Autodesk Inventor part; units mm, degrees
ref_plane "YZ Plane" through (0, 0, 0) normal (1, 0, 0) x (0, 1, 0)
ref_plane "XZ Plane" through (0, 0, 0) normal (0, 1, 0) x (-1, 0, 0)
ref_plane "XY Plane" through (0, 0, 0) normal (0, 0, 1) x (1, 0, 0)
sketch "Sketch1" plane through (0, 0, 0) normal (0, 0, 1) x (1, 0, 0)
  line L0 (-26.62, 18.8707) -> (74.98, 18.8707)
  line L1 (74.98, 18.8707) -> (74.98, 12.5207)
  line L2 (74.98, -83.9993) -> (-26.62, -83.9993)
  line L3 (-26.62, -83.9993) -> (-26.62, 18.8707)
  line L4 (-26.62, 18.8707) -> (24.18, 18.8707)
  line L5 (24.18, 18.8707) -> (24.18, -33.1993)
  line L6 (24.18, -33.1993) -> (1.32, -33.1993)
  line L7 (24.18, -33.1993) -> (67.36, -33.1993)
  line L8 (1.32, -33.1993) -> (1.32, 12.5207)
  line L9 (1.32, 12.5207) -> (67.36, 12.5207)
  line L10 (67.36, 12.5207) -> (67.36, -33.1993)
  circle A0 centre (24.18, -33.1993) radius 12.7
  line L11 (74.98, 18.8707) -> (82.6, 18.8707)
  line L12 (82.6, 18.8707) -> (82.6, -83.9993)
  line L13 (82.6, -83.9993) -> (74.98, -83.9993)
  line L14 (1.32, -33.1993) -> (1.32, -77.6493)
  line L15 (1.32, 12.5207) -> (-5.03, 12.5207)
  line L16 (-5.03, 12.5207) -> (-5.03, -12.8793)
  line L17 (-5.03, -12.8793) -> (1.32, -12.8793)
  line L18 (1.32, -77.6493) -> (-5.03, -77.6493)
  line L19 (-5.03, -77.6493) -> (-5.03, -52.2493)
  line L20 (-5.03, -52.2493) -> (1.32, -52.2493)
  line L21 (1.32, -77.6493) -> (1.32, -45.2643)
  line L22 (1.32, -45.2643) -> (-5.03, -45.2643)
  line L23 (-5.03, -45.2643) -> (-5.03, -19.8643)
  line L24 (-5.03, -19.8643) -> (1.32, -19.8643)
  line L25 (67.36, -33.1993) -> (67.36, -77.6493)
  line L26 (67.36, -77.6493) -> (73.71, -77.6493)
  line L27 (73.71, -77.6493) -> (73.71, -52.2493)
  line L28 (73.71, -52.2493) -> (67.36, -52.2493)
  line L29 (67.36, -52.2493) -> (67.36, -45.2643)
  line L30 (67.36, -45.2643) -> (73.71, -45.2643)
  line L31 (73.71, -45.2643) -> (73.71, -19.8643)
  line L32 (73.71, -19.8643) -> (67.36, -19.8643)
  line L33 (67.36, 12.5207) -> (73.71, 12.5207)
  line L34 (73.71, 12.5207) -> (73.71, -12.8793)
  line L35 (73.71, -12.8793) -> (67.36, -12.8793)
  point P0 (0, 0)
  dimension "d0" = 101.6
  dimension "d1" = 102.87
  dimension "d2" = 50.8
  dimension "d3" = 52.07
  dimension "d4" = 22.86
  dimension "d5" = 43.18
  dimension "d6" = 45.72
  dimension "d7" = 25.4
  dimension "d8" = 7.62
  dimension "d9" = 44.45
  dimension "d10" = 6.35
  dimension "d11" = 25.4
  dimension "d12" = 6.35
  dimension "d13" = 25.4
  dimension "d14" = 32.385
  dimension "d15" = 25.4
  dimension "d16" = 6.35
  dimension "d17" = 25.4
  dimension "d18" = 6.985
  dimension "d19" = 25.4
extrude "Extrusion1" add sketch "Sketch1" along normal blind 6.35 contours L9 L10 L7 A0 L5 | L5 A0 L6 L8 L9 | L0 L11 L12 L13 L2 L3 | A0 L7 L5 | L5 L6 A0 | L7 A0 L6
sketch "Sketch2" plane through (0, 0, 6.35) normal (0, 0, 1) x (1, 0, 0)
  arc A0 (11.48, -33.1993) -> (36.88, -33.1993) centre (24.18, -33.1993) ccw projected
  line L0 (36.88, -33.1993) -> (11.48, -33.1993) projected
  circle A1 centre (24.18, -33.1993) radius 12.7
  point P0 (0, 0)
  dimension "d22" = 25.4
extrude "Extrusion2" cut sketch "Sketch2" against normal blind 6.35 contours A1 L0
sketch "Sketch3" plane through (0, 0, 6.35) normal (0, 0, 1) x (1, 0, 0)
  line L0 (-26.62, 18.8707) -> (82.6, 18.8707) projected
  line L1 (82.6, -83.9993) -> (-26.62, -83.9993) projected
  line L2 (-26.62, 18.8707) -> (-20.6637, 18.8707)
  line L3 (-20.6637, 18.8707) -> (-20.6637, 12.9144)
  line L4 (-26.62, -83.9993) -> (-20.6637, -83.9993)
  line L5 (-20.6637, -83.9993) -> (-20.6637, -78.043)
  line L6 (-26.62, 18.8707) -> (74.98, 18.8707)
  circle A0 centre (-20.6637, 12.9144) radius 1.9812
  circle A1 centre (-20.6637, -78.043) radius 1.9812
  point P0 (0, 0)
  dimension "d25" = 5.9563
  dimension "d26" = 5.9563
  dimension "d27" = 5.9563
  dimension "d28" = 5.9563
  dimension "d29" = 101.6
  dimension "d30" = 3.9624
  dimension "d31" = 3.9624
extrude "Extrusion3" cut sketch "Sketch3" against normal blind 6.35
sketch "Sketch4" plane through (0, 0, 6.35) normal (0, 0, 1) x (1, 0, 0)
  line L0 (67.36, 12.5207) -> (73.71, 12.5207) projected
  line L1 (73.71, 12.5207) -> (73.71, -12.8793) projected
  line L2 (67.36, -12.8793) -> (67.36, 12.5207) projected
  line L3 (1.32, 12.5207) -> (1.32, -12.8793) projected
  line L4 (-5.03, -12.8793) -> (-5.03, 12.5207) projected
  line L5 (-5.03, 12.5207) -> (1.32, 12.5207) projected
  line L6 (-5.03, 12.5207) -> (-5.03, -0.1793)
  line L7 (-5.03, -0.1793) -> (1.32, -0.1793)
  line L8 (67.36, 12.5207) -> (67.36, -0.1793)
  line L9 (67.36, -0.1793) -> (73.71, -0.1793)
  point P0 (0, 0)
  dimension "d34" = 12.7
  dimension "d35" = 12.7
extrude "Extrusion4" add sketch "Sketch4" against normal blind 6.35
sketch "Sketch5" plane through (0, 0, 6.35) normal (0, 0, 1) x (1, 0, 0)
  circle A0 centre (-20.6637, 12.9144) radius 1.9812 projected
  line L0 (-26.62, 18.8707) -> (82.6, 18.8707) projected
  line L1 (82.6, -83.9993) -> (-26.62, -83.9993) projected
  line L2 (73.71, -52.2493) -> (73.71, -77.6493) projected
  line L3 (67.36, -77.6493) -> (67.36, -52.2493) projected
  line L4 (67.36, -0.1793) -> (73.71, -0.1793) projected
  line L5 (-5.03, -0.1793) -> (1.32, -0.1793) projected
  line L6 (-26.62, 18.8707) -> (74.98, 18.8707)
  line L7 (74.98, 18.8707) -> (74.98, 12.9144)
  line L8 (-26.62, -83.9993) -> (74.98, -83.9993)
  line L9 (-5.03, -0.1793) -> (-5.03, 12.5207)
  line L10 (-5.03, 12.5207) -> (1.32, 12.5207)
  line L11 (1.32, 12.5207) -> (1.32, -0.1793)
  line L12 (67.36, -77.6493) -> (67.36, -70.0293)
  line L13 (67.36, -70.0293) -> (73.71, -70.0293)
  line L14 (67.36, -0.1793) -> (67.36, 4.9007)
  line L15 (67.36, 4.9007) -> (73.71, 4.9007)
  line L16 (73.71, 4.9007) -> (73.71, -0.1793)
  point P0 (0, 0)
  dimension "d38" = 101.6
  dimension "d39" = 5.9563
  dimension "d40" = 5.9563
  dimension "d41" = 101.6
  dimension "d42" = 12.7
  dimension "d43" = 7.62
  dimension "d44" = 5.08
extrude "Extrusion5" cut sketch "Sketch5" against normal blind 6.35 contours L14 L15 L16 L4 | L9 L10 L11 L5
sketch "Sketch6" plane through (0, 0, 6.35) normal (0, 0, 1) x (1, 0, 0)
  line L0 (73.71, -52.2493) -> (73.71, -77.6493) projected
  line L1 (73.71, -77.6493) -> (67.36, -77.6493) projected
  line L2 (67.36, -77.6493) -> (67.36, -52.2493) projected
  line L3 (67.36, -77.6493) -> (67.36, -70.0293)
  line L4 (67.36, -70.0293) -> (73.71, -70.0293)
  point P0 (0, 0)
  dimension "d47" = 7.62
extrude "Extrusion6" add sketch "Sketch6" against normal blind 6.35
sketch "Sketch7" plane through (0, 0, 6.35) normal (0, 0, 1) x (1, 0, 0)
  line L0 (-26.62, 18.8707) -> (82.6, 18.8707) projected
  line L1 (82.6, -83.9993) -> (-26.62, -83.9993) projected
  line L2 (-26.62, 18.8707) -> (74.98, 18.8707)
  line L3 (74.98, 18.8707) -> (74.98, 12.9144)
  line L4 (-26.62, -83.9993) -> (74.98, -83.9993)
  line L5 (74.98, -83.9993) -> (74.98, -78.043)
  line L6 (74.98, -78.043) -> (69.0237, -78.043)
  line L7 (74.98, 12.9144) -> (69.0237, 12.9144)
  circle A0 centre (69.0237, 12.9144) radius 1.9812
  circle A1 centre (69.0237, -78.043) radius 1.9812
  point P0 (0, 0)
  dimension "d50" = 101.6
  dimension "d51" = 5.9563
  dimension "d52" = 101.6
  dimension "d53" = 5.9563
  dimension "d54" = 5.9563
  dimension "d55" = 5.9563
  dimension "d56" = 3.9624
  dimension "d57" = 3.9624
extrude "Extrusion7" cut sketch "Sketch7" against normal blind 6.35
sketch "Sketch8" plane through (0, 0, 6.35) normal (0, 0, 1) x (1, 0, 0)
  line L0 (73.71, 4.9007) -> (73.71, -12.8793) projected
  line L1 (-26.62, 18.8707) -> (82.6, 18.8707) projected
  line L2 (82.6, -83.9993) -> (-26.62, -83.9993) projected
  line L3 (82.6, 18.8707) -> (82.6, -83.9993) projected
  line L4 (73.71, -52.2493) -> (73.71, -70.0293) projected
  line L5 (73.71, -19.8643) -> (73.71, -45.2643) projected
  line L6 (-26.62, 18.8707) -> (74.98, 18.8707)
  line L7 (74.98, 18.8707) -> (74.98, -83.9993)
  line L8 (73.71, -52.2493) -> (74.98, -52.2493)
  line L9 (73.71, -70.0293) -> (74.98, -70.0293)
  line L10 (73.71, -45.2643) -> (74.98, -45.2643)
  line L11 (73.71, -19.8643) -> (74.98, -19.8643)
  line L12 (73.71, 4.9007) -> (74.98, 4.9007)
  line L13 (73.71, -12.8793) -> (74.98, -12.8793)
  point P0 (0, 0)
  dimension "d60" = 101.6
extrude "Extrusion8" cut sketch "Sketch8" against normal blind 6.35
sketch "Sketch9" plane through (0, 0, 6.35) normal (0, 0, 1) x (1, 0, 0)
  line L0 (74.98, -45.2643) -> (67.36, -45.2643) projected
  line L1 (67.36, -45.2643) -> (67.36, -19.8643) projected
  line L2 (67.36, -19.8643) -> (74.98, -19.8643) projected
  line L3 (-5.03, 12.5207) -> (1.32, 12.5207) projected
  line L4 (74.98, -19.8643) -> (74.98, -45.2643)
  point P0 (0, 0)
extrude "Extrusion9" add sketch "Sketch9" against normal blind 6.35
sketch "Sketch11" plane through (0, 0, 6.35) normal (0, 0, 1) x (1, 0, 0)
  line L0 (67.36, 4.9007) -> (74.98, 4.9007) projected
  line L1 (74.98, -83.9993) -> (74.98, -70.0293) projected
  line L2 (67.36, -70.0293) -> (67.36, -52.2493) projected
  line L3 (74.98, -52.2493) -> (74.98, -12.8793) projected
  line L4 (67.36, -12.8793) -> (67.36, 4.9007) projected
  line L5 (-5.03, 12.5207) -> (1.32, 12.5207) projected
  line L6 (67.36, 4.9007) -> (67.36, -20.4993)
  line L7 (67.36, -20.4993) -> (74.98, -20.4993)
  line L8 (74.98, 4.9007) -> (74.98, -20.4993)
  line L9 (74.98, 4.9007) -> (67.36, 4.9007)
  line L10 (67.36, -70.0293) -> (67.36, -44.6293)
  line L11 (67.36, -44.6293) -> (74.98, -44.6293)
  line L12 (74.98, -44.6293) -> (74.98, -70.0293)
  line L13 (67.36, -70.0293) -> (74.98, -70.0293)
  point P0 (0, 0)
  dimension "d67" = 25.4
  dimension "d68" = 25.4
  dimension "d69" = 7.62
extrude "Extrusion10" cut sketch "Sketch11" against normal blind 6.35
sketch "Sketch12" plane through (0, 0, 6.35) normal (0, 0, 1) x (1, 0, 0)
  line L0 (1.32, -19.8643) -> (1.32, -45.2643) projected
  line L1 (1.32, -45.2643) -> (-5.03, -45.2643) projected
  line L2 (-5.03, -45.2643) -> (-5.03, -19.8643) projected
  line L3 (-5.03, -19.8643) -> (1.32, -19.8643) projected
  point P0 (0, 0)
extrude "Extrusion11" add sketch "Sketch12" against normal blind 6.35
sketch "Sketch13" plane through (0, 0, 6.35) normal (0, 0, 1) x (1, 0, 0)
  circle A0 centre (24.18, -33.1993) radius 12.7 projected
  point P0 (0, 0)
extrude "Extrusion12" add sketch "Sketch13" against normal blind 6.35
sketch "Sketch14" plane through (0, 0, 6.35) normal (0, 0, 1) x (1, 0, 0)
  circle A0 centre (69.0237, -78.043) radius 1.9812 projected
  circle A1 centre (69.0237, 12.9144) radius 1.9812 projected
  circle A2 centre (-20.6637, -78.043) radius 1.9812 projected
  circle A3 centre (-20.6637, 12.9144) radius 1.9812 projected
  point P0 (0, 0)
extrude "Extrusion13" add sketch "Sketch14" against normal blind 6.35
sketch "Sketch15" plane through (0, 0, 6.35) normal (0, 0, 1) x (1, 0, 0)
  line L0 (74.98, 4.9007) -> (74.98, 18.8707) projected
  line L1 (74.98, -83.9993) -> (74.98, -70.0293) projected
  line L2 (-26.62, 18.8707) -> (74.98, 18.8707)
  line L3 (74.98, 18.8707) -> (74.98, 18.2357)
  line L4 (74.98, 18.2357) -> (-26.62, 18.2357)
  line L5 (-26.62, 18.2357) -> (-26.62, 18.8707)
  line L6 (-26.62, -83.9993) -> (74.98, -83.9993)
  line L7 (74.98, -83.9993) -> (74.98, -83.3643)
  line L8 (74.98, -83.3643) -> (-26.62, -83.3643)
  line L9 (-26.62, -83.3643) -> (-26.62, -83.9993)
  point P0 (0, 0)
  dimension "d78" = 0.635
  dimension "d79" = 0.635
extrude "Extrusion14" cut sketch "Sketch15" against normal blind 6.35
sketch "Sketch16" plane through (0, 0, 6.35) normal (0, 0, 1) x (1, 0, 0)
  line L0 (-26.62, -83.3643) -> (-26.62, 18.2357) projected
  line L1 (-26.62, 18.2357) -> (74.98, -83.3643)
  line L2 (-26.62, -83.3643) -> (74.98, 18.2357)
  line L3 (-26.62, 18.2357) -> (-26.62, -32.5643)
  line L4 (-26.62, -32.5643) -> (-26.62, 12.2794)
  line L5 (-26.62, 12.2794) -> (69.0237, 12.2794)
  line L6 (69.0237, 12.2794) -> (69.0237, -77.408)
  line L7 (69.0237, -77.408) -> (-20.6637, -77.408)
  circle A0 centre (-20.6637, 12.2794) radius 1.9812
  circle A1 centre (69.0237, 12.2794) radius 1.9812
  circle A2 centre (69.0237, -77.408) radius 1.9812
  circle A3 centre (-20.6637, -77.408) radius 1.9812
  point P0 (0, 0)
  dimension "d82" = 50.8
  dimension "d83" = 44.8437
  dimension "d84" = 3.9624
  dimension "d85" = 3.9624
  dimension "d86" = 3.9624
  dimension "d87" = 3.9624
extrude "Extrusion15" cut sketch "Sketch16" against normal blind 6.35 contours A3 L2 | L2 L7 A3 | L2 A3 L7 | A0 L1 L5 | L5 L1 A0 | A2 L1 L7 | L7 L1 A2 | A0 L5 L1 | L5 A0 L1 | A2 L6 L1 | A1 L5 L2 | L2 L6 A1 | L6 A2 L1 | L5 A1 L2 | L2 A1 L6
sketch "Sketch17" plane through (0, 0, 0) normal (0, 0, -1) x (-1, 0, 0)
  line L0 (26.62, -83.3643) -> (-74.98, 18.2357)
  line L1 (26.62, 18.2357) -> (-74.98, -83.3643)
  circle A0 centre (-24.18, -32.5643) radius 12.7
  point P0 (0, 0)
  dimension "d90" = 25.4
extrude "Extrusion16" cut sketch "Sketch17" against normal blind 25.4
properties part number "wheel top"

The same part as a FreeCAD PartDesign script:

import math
import FreeCAD as App
import Part
import Sketcher
Q = App.Units.Quantity


def add_polygon(sketch, points):
    """Adds a closed chain of lines whose ends are joined by coincident constraints."""
    first, n = sketch.GeometryCount, len(points)
    for a, b in zip(points, points[1:] + points[:1]):
        sketch.addGeometry(Part.LineSegment(App.Vector(*a, 0), App.Vector(*b, 0)), False)
    for i in range(n):
        sketch.addConstraint(Sketcher.Constraint("Coincident", first + i, 2, first + (i + 1) % n, 1))

doc = App.newDocument("Part")
params = doc.addObject("Spreadsheet::Sheet", "Params")
for row, (alias, value) in enumerate([
    ("sketch1_width", "2 in"),
    ("sketch1_height", "1 in"),
    ("sketch1_width2", "0.25 in"),
    ("sketch1_height2", "4.05 in"),
    ("sketch1_width3", "4.3 in"),
    ("pad1_length", "0.25 in"),
    ("sketch2_radius", "0.5 in"),
    ("pocket1_length", "0.25 in"),
    ("sketch3_diameter", "0.156 in"),
    ("pocket2_length", "0.25 in"),
    ("sketch4_height", "0.5 in"),
    ("sketch4_width", "0.25 in"),
    ("pad2_length", "0.25 in"),
    ("sketch5_height", "0.2 in"),
    ("sketch5_height2", "0.5 in"),
    ("sketch5_width", "0.25 in"),
    ("pocket3_length", "0.25 in"),
    ("sketch6_height", "0.3 in"),
    ("sketch6_width", "0.25 in"),
    ("pad3_length", "0.25 in"),
    ("sketch7_diameter", "0.156 in"),
    ("pocket4_length", "0.25 in"),
    ("sketch8_height", "1 in"),
    ("sketch8_width", "0.3 in"),
    ("sketch8_height2", "0.7 in"),
    ("sketch8_width2", "0.05 in"),
    ("sketch8_height3", "0.55 in"),
    ("pocket5_length", "0.25 in"),
    ("sketch9_height", "1 in"),
    ("sketch9_width", "0.3 in"),
    ("pad4_length", "0.25 in"),
    ("sketch10_height", "1 in"),
    ("sketch10_width", "0.3 in"),
    ("pocket6_length", "0.25 in"),
    ("sketch11_height", "1 in"),
    ("sketch11_width", "0.25 in"),
    ("pad5_length", "0.25 in"),
    ("sketch12_diameter", "1 in"),
    ("pad6_length", "0.25 in"),
    ("sketch13_diameter", "0.156 in"),
    ("pad7_length", "0.25 in"),
    ("sketch14_width", "4 in"),
    ("sketch14_height", "0.025 in"),
    ("pocket7_length", "0.25 in"),
    ("sketch15_diameter", "0.156 in"),
    ("pocket8_length", "0.25 in"),
    ("sketch16_diameter", "1 in"),
    ("pocket9_length", "1 in"),
], start=1):
    params.set(f"A{row}", alias)
    params.set(f"B{row}", "=" + value)
    params.setAlias(f"B{row}", alias)

body = doc.addObject("PartDesign::Body", "Body")

# Sketch on XY plane
sketch1 = body.newObject("Sketcher::SketchObject", "Sketch")
sketch1.AttachmentSupport = (doc.getObject("XY_Plane"), [""])
sketch1.MapMode = "FlatFace"
add_polygon(sketch1, [(24, 19), (-27, 19), (-27, -84), (83, -84), (83, 19)])  # lines 0-4
add_polygon(sketch1, [(67, -13), (67, 13), (74, 13), (74, -13)])  # lines 5-8
add_polygon(sketch1, [(67, -20), (74, -20), (74, -45), (67, -45)])  # lines 9-12
add_polygon(sketch1, [(-5, -52), (1, -52), (1, -78), (-5, -78)])  # lines 13-16
add_polygon(sketch1, [(67, -78), (67, -52), (74, -52), (74, -78)])  # lines 17-20
add_polygon(sketch1, [(-5, 13), (1, 13), (1, -13), (-5, -13)])  # lines 21-24
add_polygon(sketch1, [(-5, -20), (1, -20), (1, -45), (-5, -45)])  # lines 25-28
sketch1.addConstraint([
    Sketcher.Constraint("Horizontal", 0),
    Sketcher.Constraint("Vertical", 1),
    Sketcher.Constraint("Horizontal", 2),
    Sketcher.Constraint("Vertical", 3),
    Sketcher.Constraint("Horizontal", 4),
    Sketcher.Constraint("Vertical", 5),
    Sketcher.Constraint("Horizontal", 6),
    Sketcher.Constraint("Vertical", 7),
    Sketcher.Constraint("Horizontal", 8),
    Sketcher.Constraint("Horizontal", 9),
    Sketcher.Constraint("Vertical", 10),
    Sketcher.Constraint("Horizontal", 11),
    Sketcher.Constraint("Vertical", 12),
    Sketcher.Constraint("Horizontal", 13),
    Sketcher.Constraint("Vertical", 14),
    Sketcher.Constraint("Horizontal", 15),
    Sketcher.Constraint("Vertical", 16),
    Sketcher.Constraint("Vertical", 17),
    Sketcher.Constraint("Horizontal", 18),
    Sketcher.Constraint("Vertical", 19),
    Sketcher.Constraint("Horizontal", 20),
    Sketcher.Constraint("Horizontal", 21),
    Sketcher.Constraint("Vertical", 22),
    Sketcher.Constraint("Horizontal", 23),
    Sketcher.Constraint("Vertical", 24),
    Sketcher.Constraint("Horizontal", 25),
    Sketcher.Constraint("Vertical", 26),
    Sketcher.Constraint("Horizontal", 27),
    Sketcher.Constraint("Vertical", 28),
    Sketcher.Constraint("Horizontal", 16, 2, 17, 2),
    Sketcher.Constraint("Horizontal", 15, 2, 19, 2),
    Sketcher.Constraint("Horizontal", 6, 2, 21, 2),
    Sketcher.Constraint("Horizontal", 8, 2, 22, 2),
    Sketcher.Constraint("Horizontal", 12, 2, 25, 2),
    Sketcher.Constraint("Horizontal", 11, 2, 26, 2),
    Sketcher.Constraint("Vertical", 7, 2, 9, 2),
    Sketcher.Constraint("Vertical", 8, 2, 11, 2),
    Sketcher.Constraint("Vertical", 12, 2, 17, 2),
    Sketcher.Constraint("Vertical", 10, 2, 18, 2),
    Sketcher.Constraint("Vertical", 14, 2, 21, 2),
    Sketcher.Constraint("Vertical", 16, 2, 23, 2),
    Sketcher.Constraint("Vertical", 22, 2, 25, 2),
    Sketcher.Constraint("Vertical", 24, 2, 27, 2),
    Sketcher.Constraint("Equal", 11, 13),
    Sketcher.Constraint("Equal", 7, 10),
    Sketcher.Constraint("Equal", 12, 14),
    Sketcher.Constraint("DistanceX", 0, 2, 0, 1, Q("2 in")),
    Sketcher.Constraint("DistanceY", 5, 1, 5, 2, Q("1 in")),
    Sketcher.Constraint("DistanceX", 6, 1, 6, 2, Q("0.25 in")),
    Sketcher.Constraint("DistanceY", 1, 2, 1, 1, Q("4.05 in")),
    Sketcher.Constraint("DistanceX", 4, 2, 5, 2, Q("1.7 in")),
    Sketcher.Constraint("DistanceX", 13, 2, 4, 2, Q("0.9 in")),
    Sketcher.Constraint("DistanceY", 5, 2, 3, 2, Q("0.25 in")),
    Sketcher.Constraint("DistanceY", 1, 2, 14, 2, Q("0.25 in")),
    Sketcher.Constraint("DistanceX", 2, 1, 2, 2, Q("4.3 in")),
    Sketcher.Constraint("DistanceY", 9, 2, 7, 2, Q("0.275 in")),
    Sketcher.Constraint("DistanceX", 0, 2, -1, 1, 26.62),
    Sketcher.Constraint("DistanceY", -1, 1, 0, 2, 18.8707),
])
sketch1.setExpression("Constraints[75]", "Params.sketch1_width")
sketch1.setExpression("Constraints[76]", "Params.sketch1_height")
sketch1.setExpression("Constraints[77]", "Params.sketch1_width2")
sketch1.setExpression("Constraints[78]", "Params.sketch1_height2")
sketch1.setExpression("Constraints[83]", "Params.sketch1_width3")
pad1 = body.newObject("PartDesign::Pad", "Pad")
pad1.Profile = sketch1
pad1.setExpression("Length", "Params.pad1_length")

# Sketch on XY plane
sketch2 = body.newObject("Sketcher::SketchObject", "Sketch001")
sketch2.AttachmentSupport = (doc.getObject("XY_Plane"), [""])
sketch2.MapMode = "FlatFace"
sketch2.AttachmentOffset = App.Placement(App.Vector(0, 0, 0.25 * 25.4), App.Rotation())
sketch2.addGeometry([
    Part.ArcOfCircle(Part.Circle(App.Vector(24, -33, 0), App.Vector(0, 0, 1), 13), math.radians(0), math.radians(180)),
    Part.LineSegment(App.Vector(11, -33, 0), App.Vector(37, -33, 0)),
], False)
sketch2.addConstraint([
    Sketcher.Constraint("Coincident", 0, 1, 1, 2),
    Sketcher.Constraint("Coincident", 1, 1, 0, 2),
    Sketcher.Constraint("Horizontal", 1),
    Sketcher.Constraint("Radius", 0, Q("0.5 in")),
    Sketcher.Constraint("DistanceX", -1, 1, 0, 3, 24.18),
    Sketcher.Constraint("DistanceY", 0, 3, -1, 1, 33.1993),
    Sketcher.Constraint("DistanceY", 0, 1, -1, 1, 33.1993),
])
sketch2.setExpression("Constraints[3]", "Params.sketch2_radius")
pocket1 = body.newObject("PartDesign::Pocket", "Pocket")
pocket1.Profile = sketch2
pocket1.setExpression("Length", "Params.pocket1_length")

# Sketch on XY plane
sketch3 = body.newObject("Sketcher::SketchObject", "Sketch002")
sketch3.AttachmentSupport = (doc.getObject("XY_Plane"), [""])
sketch3.MapMode = "FlatFace"
sketch3.AttachmentOffset = App.Placement(App.Vector(0, 0, 0.25 * 25.4), App.Rotation())
sketch3.addGeometry([
    Part.Circle(App.Vector(-20.7, 12.9, 0), App.Vector(0, 0, 1), 2),
    Part.Circle(App.Vector(-20.7, -78, 0), App.Vector(0, 0, 1), 2),
], False)
sketch3.addConstraint([
    Sketcher.Constraint("Equal", 0, 1),
    Sketcher.Constraint("Vertical", 0, 3, 1, 3),
    Sketcher.Constraint("Diameter", 0, Q("0.156 in")),
    Sketcher.Constraint("DistanceY", 1, 3, 0, 3, Q("3.581 in")),
    Sketcher.Constraint("DistanceX", 0, 3, -1, 1, 20.6637),
    Sketcher.Constraint("DistanceY", -1, 1, 0, 3, 12.9144),
])
sketch3.setExpression("Constraints[2]", "Params.sketch3_diameter")
pocket2 = body.newObject("PartDesign::Pocket", "Pocket001")
pocket2.Profile = sketch3
pocket2.setExpression("Length", "Params.pocket2_length")

# Sketch on XY plane
sketch4 = body.newObject("Sketcher::SketchObject", "Sketch003")
sketch4.AttachmentSupport = (doc.getObject("XY_Plane"), [""])
sketch4.MapMode = "FlatFace"
sketch4.AttachmentOffset = App.Placement(App.Vector(0, 0, 0.25 * 25.4), App.Rotation())
add_polygon(sketch4, [(74, 13), (67, 13), (67, 0), (74, 0)])  # lines 0-3
add_polygon(sketch4, [(1, 0), (1, 13), (-5, 13), (-5, 0)])  # lines 4-7
sketch4.addConstraint([
    Sketcher.Constraint("Horizontal", 0),
    Sketcher.Constraint("Vertical", 1),
    Sketcher.Constraint("Horizontal", 2),
    Sketcher.Constraint("Vertical", 3),
    Sketcher.Constraint("Vertical", 4),
    Sketcher.Constraint("Horizontal", 5),
    Sketcher.Constraint("Vertical", 6),
    Sketcher.Constraint("Horizontal", 7),
    Sketcher.Constraint("Horizontal", 3, 2, 4, 2),
    Sketcher.Constraint("Horizontal", 2, 2, 6, 2),
    Sketcher.Constraint("Equal", 2, 5),
    Sketcher.Constraint("DistanceY", 1, 2, 1, 1, Q("0.5 in")),
    Sketcher.Constraint("DistanceX", 0, 2, 0, 1, Q("0.25 in")),
    Sketcher.Constraint("DistanceX", 4, 2, 0, 2, Q("2.6 in")),
    Sketcher.Constraint("DistanceX", -1, 1, 0, 2, 67.36),
    Sketcher.Constraint("DistanceY", -1, 1, 0, 2, 12.5207),
])
sketch4.setExpression("Constraints[19]", "Params.sketch4_height")
sketch4.setExpression("Constraints[20]", "Params.sketch4_width")
pad2 = body.newObject("PartDesign::Pad", "Pad001")
pad2.Profile = sketch4
pad2.setExpression("Length", "Params.pad2_length")
pad2.Reversed = True

# Sketch on XY plane
sketch5 = body.newObject("Sketcher::SketchObject", "Sketch004")
sketch5.AttachmentSupport = (doc.getObject("XY_Plane"), [""])
sketch5.MapMode = "FlatFace"
sketch5.AttachmentOffset = App.Placement(App.Vector(0, 0, 0.25 * 25.4), App.Rotation())
add_polygon(sketch5, [(67, 5), (67, 0), (74, 0), (74, 5)])  # lines 0-3
add_polygon(sketch5, [(-5, 13), (-5, 0), (1, 0), (1, 13)])  # lines 4-7
sketch5.addConstraint([
    Sketcher.Constraint("Vertical", 0),
    Sketcher.Constraint("Horizontal", 1),
    Sketcher.Constraint("Vertical", 2),
    Sketcher.Constraint("Horizontal", 3),
    Sketcher.Constraint("Vertical", 4),
    Sketcher.Constraint("Horizontal", 5),
    Sketcher.Constraint("Vertical", 6),
    Sketcher.Constraint("Horizontal", 7),
    Sketcher.Constraint("Horizontal", 1, 2, 4, 2),
    Sketcher.Constraint("Equal", 3, 5),
    Sketcher.Constraint("DistanceY", 0, 2, 0, 1, Q("0.2 in")),
    Sketcher.Constraint("DistanceY", 4, 2, 4, 1, Q("0.5 in")),
    Sketcher.Constraint("DistanceX", 1, 1, 1, 2, Q("0.25 in")),
    Sketcher.Constraint("DistanceX", 4, 2, 1, 2, Q("3.1 in")),
    Sketcher.Constraint("DistanceX", -1, 1, 0, 2, 67.36),
    Sketcher.Constraint("DistanceY", 0, 2, -1, 1, 0.1793),
])
sketch5.setExpression("Constraints[18]", "Params.sketch5_height")
sketch5.setExpression("Constraints[19]", "Params.sketch5_height2")
sketch5.setExpression("Constraints[20]", "Params.sketch5_width")
pocket3 = body.newObject("PartDesign::Pocket", "Pocket002")
pocket3.Profile = sketch5
pocket3.setExpression("Length", "Params.pocket3_length")

# Sketch on XY plane
sketch6 = body.newObject("Sketcher::SketchObject", "Sketch005")
sketch6.AttachmentSupport = (doc.getObject("XY_Plane"), [""])
sketch6.MapMode = "FlatFace"
sketch6.AttachmentOffset = App.Placement(App.Vector(0, 0, 0.25 * 25.4), App.Rotation())
add_polygon(sketch6, [(74, -78), (74, -70), (67, -70), (67, -78)])  # lines 0-3
sketch6.addConstraint([
    Sketcher.Constraint("Vertical", 0),
    Sketcher.Constraint("Horizontal", 1),
    Sketcher.Constraint("Vertical", 2),
    Sketcher.Constraint("Horizontal", 3),
    Sketcher.Constraint("DistanceY", 0, 1, 0, 2, Q("0.3 in")),
    Sketcher.Constraint("DistanceX", 1, 2, 1, 1, Q("0.25 in")),
    Sketcher.Constraint("DistanceX", -1, 1, 0, 2, 73.71),
    Sketcher.Constraint("DistanceY", 0, 2, -1, 1, 70.0293),
])
sketch6.setExpression("Constraints[8]", "Params.sketch6_height")
sketch6.setExpression("Constraints[9]", "Params.sketch6_width")
pad3 = body.newObject("PartDesign::Pad", "Pad002")
pad3.Profile = sketch6
pad3.setExpression("Length", "Params.pad3_length")
pad3.Reversed = True

# Sketch on XY plane
sketch7 = body.newObject("Sketcher::SketchObject", "Sketch006")
sketch7.AttachmentSupport = (doc.getObject("XY_Plane"), [""])
sketch7.MapMode = "FlatFace"
sketch7.AttachmentOffset = App.Placement(App.Vector(0, 0, 0.25 * 25.4), App.Rotation())
sketch7.addGeometry([
    Part.Circle(App.Vector(69, 12.9, 0), App.Vector(0, 0, 1), 2),
    Part.Circle(App.Vector(69, -78, 0), App.Vector(0, 0, 1), 2),
], False)
sketch7.addConstraint([
    Sketcher.Constraint("Equal", 0, 1),
    Sketcher.Constraint("Vertical", 0, 3, 1, 3),
    Sketcher.Constraint("Diameter", 0, Q("0.156 in")),
    Sketcher.Constraint("DistanceY", 1, 3, 0, 3, Q("3.581 in")),
    Sketcher.Constraint("DistanceX", -1, 1, 0, 3, 69.0237),
    Sketcher.Constraint("DistanceY", -1, 1, 0, 3, 12.9144),
])
sketch7.setExpression("Constraints[2]", "Params.sketch7_diameter")
pocket4 = body.newObject("PartDesign::Pocket", "Pocket003")
pocket4.Profile = sketch7
pocket4.setExpression("Length", "Params.pocket4_length")

# Sketch on XY plane
sketch8 = body.newObject("Sketcher::SketchObject", "Sketch007")
sketch8.AttachmentSupport = (doc.getObject("XY_Plane"), [""])
sketch8.MapMode = "FlatFace"
sketch8.AttachmentOffset = App.Placement(App.Vector(0, 0, 0.25 * 25.4), App.Rotation())
add_polygon(sketch8, [(75, 4.9), (73.7, 4.9), (73.7, -12.9), (75, -12.9), (75, -19.9), (73.7, -19.9), (73.7, -45.3), (75, -45.3), (75, -52.2), (73.7, -52.2), (73.7, -70), (75, -70), (75, -84), (82.6, -84), (82.6, 18.9), (75, 18.9)])  # lines 0-15
sketch8.addConstraint([
    Sketcher.Constraint("Horizontal", 0),
    Sketcher.Constraint("Vertical", 1),
    Sketcher.Constraint("Horizontal", 2),
    Sketcher.Constraint("Vertical", 3),
    Sketcher.Constraint("Horizontal", 4),
    Sketcher.Constraint("Vertical", 5),
    Sketcher.Constraint("Horizontal", 6),
    Sketcher.Constraint("Vertical", 7),
    Sketcher.Constraint("Horizontal", 8),
    Sketcher.Constraint("Vertical", 9),
    Sketcher.Constraint("Horizontal", 10),
    Sketcher.Constraint("Vertical", 11),
    Sketcher.Constraint("Horizontal", 12),
    Sketcher.Constraint("Vertical", 13),
    Sketcher.Constraint("Horizontal", 14),
    Sketcher.Constraint("Vertical", 15),
    Sketcher.Constraint("Vertical", 1, 2, 4, 2),
    Sketcher.Constraint("Vertical", 3, 2, 6, 2),
    Sketcher.Constraint("Vertical", 5, 2, 8, 2),
    Sketcher.Constraint("Vertical", 7, 2, 10, 2),
    Sketcher.Constraint("Vertical", 11, 2, 14, 2),
    Sketcher.Constraint("Equal", 3, 7),
    Sketcher.Constraint("Equal", 1, 9),
    Sketcher.Constraint("Equal", 11, 15),
    Sketcher.Constraint("DistanceY", 5, 2, 5, 1, Q("1 in")),
    Sketcher.Constraint("DistanceX", 12, 1, 12, 2, Q("0.3 in")),
    Sketcher.Constraint("DistanceY", 1, 2, 1, 1, Q("0.7 in")),
    Sketcher.Constraint("DistanceX", 0, 2, 0, 1, Q("0.05 in")),
    Sketcher.Constraint("DistanceY", 11, 2, 11, 1, Q("0.55 in")),
    Sketcher.Constraint("DistanceY", 13, 1, 13, 2, Q("4.05 in")),
    Sketcher.Constraint("DistanceX", -1, 1, 0, 2, 73.71),
    Sketcher.Constraint("DistanceY", -1, 1, 0, 2, 4.9007),
])
sketch8.setExpression("Constraints[40]", "Params.sketch8_height")
sketch8.setExpression("Constraints[41]", "Params.sketch8_width")
sketch8.setExpression("Constraints[42]", "Params.sketch8_height2")
sketch8.setExpression("Constraints[43]", "Params.sketch8_width2")
sketch8.setExpression("Constraints[44]", "Params.sketch8_height3")
pocket5 = body.newObject("PartDesign::Pocket", "Pocket004")
pocket5.Profile = sketch8
pocket5.setExpression("Length", "Params.pocket5_length")

# Sketch on XY plane
sketch9 = body.newObject("Sketcher::SketchObject", "Sketch008")
sketch9.AttachmentSupport = (doc.getObject("XY_Plane"), [""])
sketch9.MapMode = "FlatFace"
sketch9.AttachmentOffset = App.Placement(App.Vector(0, 0, 0.25 * 25.4), App.Rotation())
add_polygon(sketch9, [(67, -45), (75, -45), (75, -20), (67, -20)])  # lines 0-3
sketch9.addConstraint([
    Sketcher.Constraint("Horizontal", 0),
    Sketcher.Constraint("Vertical", 1),
    Sketcher.Constraint("Horizontal", 2),
    Sketcher.Constraint("Vertical", 3),
    Sketcher.Constraint("DistanceY", 1, 1, 1, 2, Q("1 in")),
    Sketcher.Constraint("DistanceX", 0, 1, 0, 2, Q("0.3 in")),
    Sketcher.Constraint("DistanceX", -1, 1, 0, 2, 74.98),
    Sketcher.Constraint("DistanceY", 0, 2, -1, 1, 45.2643),
])
sketch9.setExpression("Constraints[8]", "Params.sketch9_height")
sketch9.setExpression("Constraints[9]", "Params.sketch9_width")
pad4 = body.newObject("PartDesign::Pad", "Pad003")
pad4.Profile = sketch9
pad4.setExpression("Length", "Params.pad4_length")
pad4.Reversed = True

# Sketch on XY plane
sketch10 = body.newObject("Sketcher::SketchObject", "Sketch009")
sketch10.AttachmentSupport = (doc.getObject("XY_Plane"), [""])
sketch10.MapMode = "FlatFace"
sketch10.AttachmentOffset = App.Placement(App.Vector(0, 0, 0.25 * 25.4), App.Rotation())
add_polygon(sketch10, [(75, -70), (75, -45), (67, -45), (67, -70)])  # lines 0-3
add_polygon(sketch10, [(75, 5), (67, 5), (67, -20), (75, -20)])  # lines 4-7
sketch10.addConstraint([
    Sketcher.Constraint("Vertical", 0),
    Sketcher.Constraint("Horizontal", 1),
    Sketcher.Constraint("Vertical", 2),
    Sketcher.Constraint("Horizontal", 3),
    Sketcher.Constraint("Horizontal", 4),
    Sketcher.Constraint("Vertical", 5),
    Sketcher.Constraint("Horizontal", 6),
    Sketcher.Constraint("Vertical", 7),
    Sketcher.Constraint("Vertical", 2, 2, 4, 2),
    Sketcher.Constraint("Vertical", 3, 2, 6, 2),
    Sketcher.Constraint("Equal", 2, 5),
    Sketcher.Constraint("DistanceY", 0, 1, 0, 2, Q("1 in")),
    Sketcher.Constraint("DistanceX", 1, 2, 1, 1, Q("0.3 in")),
    Sketcher.Constraint("DistanceY", 1, 2, 4, 2, Q("1.95 in")),
    Sketcher.Constraint("DistanceX", -1, 1, 0, 2, 74.98),
    Sketcher.Constraint("DistanceY", 0, 2, -1, 1, 44.6293),
])
sketch10.setExpression("Constraints[19]", "Params.sketch10_height")
sketch10.setExpression("Constraints[20]", "Params.sketch10_width")
pocket6 = body.newObject("PartDesign::Pocket", "Pocket005")
pocket6.Profile = sketch10
pocket6.setExpression("Length", "Params.pocket6_length")

# Sketch on XY plane
sketch11 = body.newObject("Sketcher::SketchObject", "Sketch010")
sketch11.AttachmentSupport = (doc.getObject("XY_Plane"), [""])
sketch11.MapMode = "FlatFace"
sketch11.AttachmentOffset = App.Placement(App.Vector(0, 0, 0.25 * 25.4), App.Rotation())
add_polygon(sketch11, [(1, -45), (1, -20), (-5, -20), (-5, -45)])  # lines 0-3
sketch11.addConstraint([
    Sketcher.Constraint("Vertical", 0),
    Sketcher.Constraint("Horizontal", 1),
    Sketcher.Constraint("Vertical", 2),
    Sketcher.Constraint("Horizontal", 3),
    Sketcher.Constraint("DistanceY", 0, 1, 0, 2, Q("1 in")),
    Sketcher.Constraint("DistanceX", 1, 2, 1, 1, Q("0.25 in")),
    Sketcher.Constraint("DistanceX", -1, 1, 0, 2, 1.32),
    Sketcher.Constraint("DistanceY", 0, 2, -1, 1, 19.8643),
])
sketch11.setExpression("Constraints[8]", "Params.sketch11_height")
sketch11.setExpression("Constraints[9]", "Params.sketch11_width")
pad5 = body.newObject("PartDesign::Pad", "Pad004")
pad5.Profile = sketch11
pad5.setExpression("Length", "Params.pad5_length")
pad5.Reversed = True

# Sketch on XY plane
sketch12 = body.newObject("Sketcher::SketchObject", "Sketch011")
sketch12.AttachmentSupport = (doc.getObject("XY_Plane"), [""])
sketch12.MapMode = "FlatFace"
sketch12.AttachmentOffset = App.Placement(App.Vector(0, 0, 0.25 * 25.4), App.Rotation())
sketch12.addGeometry(Part.Circle(App.Vector(24, -33, 0), App.Vector(0, 0, 1), 13), False)
sketch12.addConstraint([
    Sketcher.Constraint("Diameter", 0, Q("1 in")),
    Sketcher.Constraint("DistanceX", -1, 1, 0, 3, 24.18),
    Sketcher.Constraint("DistanceY", 0, 3, -1, 1, 33.1993),
])
sketch12.setExpression("Constraints[0]", "Params.sketch12_diameter")
pad6 = body.newObject("PartDesign::Pad", "Pad005")
pad6.Profile = sketch12
pad6.setExpression("Length", "Params.pad6_length")
pad6.Reversed = True

# Sketch on XY plane
sketch13 = body.newObject("Sketcher::SketchObject", "Sketch012")
sketch13.AttachmentSupport = (doc.getObject("XY_Plane"), [""])
sketch13.MapMode = "FlatFace"
sketch13.AttachmentOffset = App.Placement(App.Vector(0, 0, 0.25 * 25.4), App.Rotation())
sketch13.addGeometry([
    Part.Circle(App.Vector(69, -78, 0), App.Vector(0, 0, 1), 2),
    Part.Circle(App.Vector(69, 12.9, 0), App.Vector(0, 0, 1), 2),
    Part.Circle(App.Vector(-20.7, -78, 0), App.Vector(0, 0, 1), 2),
    Part.Circle(App.Vector(-20.7, 12.9, 0), App.Vector(0, 0, 1), 2),
], False)
sketch13.addConstraint([
    Sketcher.Constraint("Equal", 0, 1),
    Sketcher.Constraint("Equal", 1, 2),
    Sketcher.Constraint("Equal", 2, 3),
    Sketcher.Constraint("Horizontal", 0, 3, 2, 3),
    Sketcher.Constraint("Horizontal", 1, 3, 3, 3),
    Sketcher.Constraint("Vertical", 0, 3, 1, 3),
    Sketcher.Constraint("Vertical", 2, 3, 3, 3),
    Sketcher.Constraint("Diameter", 0, Q("0.156 in")),
    Sketcher.Constraint("DistanceY", 0, 3, 1, 3, Q("3.581 in")),
    Sketcher.Constraint("DistanceX", 2, 3, 0, 3, Q("3.531 in")),
    Sketcher.Constraint("DistanceX", -1, 1, 0, 3, 69.0237),
    Sketcher.Constraint("DistanceY", 0, 3, -1, 1, 78.043),
])
sketch13.setExpression("Constraints[7]", "Params.sketch13_diameter")
pad7 = body.newObject("PartDesign::Pad", "Pad006")
pad7.Profile = sketch13
pad7.setExpression("Length", "Params.pad7_length")
pad7.Reversed = True

# Sketch on XY plane
sketch14 = body.newObject("Sketcher::SketchObject", "Sketch013")
sketch14.AttachmentSupport = (doc.getObject("XY_Plane"), [""])
sketch14.MapMode = "FlatFace"
sketch14.AttachmentOffset = App.Placement(App.Vector(0, 0, 0.25 * 25.4), App.Rotation())
add_polygon(sketch14, [(-26.6, 18.2), (75, 18.2), (75, 18.9), (-26.6, 18.9)])  # lines 0-3
add_polygon(sketch14, [(-26.6, -84), (75, -84), (75, -83.4), (-26.6, -83.4)])  # lines 4-7
sketch14.addConstraint([
    Sketcher.Constraint("Horizontal", 0),
    Sketcher.Constraint("Vertical", 1),
    Sketcher.Constraint("Horizontal", 2),
    Sketcher.Constraint("Vertical", 3),
    Sketcher.Constraint("Horizontal", 4),
    Sketcher.Constraint("Vertical", 5),
    Sketcher.Constraint("Horizontal", 6),
    Sketcher.Constraint("Vertical", 7),
    Sketcher.Constraint("Vertical", 1, 2, 4, 2),
    Sketcher.Constraint("Vertical", 3, 2, 6, 2),
    Sketcher.Constraint("Equal", 3, 5),
    Sketcher.Constraint("DistanceX", 0, 1, 0, 2, Q("4 in")),
    Sketcher.Constraint("DistanceY", 1, 1, 1, 2, Q("0.025 in")),
    Sketcher.Constraint("DistanceY", 5, 2, 0, 2, Q("4 in")),
    Sketcher.Constraint("DistanceX", -1, 1, 0, 2, 74.98),
    Sketcher.Constraint("DistanceY", -1, 1, 0, 2, 18.2357),
])
sketch14.setExpression("Constraints[19]", "Params.sketch14_width")
sketch14.setExpression("Constraints[20]", "Params.sketch14_height")
pocket7 = body.newObject("PartDesign::Pocket", "Pocket006")
pocket7.Profile = sketch14
pocket7.setExpression("Length", "Params.pocket7_length")

# Sketch on XY plane
sketch15 = body.newObject("Sketcher::SketchObject", "Sketch014")
sketch15.AttachmentSupport = (doc.getObject("XY_Plane"), [""])
sketch15.MapMode = "FlatFace"
sketch15.AttachmentOffset = App.Placement(App.Vector(0, 0, 0.25 * 25.4), App.Rotation())
sketch15.addGeometry([
    Part.Circle(App.Vector(-20.7, -77.4, 0), App.Vector(0, 0, 1), 2),
    Part.Circle(App.Vector(-20.7, 12.3, 0), App.Vector(0, 0, 1), 2),
    Part.Circle(App.Vector(69, -77.4, 0), App.Vector(0, 0, 1), 2),
    Part.Circle(App.Vector(69, 12.3, 0), App.Vector(0, 0, 1), 2),
], False)
sketch15.addConstraint([
    Sketcher.Constraint("Equal", 0, 1),
    Sketcher.Constraint("Equal", 1, 2),
    Sketcher.Constraint("Equal", 2, 3),
    Sketcher.Constraint("Horizontal", 0, 3, 2, 3),
    Sketcher.Constraint("Horizontal", 1, 3, 3, 3),
    Sketcher.Constraint("Vertical", 0, 3, 1, 3),
    Sketcher.Constraint("Vertical", 2, 3, 3, 3),
    Sketcher.Constraint("Diameter", 0, Q("0.156 in")),
    Sketcher.Constraint("DistanceY", 0, 3, 1, 3, Q("3.531 in")),
    Sketcher.Constraint("DistanceX", 0, 3, 2, 3, Q("3.531 in")),
    Sketcher.Constraint("DistanceX", 0, 3, -1, 1, 20.6637),
    Sketcher.Constraint("DistanceY", 0, 3, -1, 1, 77.408),
])
sketch15.setExpression("Constraints[7]", "Params.sketch15_diameter")
pocket8 = body.newObject("PartDesign::Pocket", "Pocket007")
pocket8.Profile = sketch15
pocket8.setExpression("Length", "Params.pocket8_length")

# Sketch on XY plane
sketch16 = body.newObject("Sketcher::SketchObject", "Sketch015")
sketch16.AttachmentSupport = (doc.getObject("XY_Plane"), [""])
sketch16.MapMode = "FlatFace"
sketch16.addGeometry(Part.Circle(App.Vector(24, -33, 0), App.Vector(0, 0, 1), 13), False)
sketch16.addConstraint([
    Sketcher.Constraint("Diameter", 0, Q("1 in")),
    Sketcher.Constraint("DistanceX", -1, 1, 0, 3, 24.18),
    Sketcher.Constraint("DistanceY", 0, 3, -1, 1, 32.5643),
])
sketch16.setExpression("Constraints[0]", "Params.sketch16_diameter")
pocket9 = body.newObject("PartDesign::Pocket", "Pocket008")
pocket9.Profile = sketch16
pocket9.setExpression("Length", "Params.pocket9_length")
pocket9.Reversed = True

doc.recompute()
